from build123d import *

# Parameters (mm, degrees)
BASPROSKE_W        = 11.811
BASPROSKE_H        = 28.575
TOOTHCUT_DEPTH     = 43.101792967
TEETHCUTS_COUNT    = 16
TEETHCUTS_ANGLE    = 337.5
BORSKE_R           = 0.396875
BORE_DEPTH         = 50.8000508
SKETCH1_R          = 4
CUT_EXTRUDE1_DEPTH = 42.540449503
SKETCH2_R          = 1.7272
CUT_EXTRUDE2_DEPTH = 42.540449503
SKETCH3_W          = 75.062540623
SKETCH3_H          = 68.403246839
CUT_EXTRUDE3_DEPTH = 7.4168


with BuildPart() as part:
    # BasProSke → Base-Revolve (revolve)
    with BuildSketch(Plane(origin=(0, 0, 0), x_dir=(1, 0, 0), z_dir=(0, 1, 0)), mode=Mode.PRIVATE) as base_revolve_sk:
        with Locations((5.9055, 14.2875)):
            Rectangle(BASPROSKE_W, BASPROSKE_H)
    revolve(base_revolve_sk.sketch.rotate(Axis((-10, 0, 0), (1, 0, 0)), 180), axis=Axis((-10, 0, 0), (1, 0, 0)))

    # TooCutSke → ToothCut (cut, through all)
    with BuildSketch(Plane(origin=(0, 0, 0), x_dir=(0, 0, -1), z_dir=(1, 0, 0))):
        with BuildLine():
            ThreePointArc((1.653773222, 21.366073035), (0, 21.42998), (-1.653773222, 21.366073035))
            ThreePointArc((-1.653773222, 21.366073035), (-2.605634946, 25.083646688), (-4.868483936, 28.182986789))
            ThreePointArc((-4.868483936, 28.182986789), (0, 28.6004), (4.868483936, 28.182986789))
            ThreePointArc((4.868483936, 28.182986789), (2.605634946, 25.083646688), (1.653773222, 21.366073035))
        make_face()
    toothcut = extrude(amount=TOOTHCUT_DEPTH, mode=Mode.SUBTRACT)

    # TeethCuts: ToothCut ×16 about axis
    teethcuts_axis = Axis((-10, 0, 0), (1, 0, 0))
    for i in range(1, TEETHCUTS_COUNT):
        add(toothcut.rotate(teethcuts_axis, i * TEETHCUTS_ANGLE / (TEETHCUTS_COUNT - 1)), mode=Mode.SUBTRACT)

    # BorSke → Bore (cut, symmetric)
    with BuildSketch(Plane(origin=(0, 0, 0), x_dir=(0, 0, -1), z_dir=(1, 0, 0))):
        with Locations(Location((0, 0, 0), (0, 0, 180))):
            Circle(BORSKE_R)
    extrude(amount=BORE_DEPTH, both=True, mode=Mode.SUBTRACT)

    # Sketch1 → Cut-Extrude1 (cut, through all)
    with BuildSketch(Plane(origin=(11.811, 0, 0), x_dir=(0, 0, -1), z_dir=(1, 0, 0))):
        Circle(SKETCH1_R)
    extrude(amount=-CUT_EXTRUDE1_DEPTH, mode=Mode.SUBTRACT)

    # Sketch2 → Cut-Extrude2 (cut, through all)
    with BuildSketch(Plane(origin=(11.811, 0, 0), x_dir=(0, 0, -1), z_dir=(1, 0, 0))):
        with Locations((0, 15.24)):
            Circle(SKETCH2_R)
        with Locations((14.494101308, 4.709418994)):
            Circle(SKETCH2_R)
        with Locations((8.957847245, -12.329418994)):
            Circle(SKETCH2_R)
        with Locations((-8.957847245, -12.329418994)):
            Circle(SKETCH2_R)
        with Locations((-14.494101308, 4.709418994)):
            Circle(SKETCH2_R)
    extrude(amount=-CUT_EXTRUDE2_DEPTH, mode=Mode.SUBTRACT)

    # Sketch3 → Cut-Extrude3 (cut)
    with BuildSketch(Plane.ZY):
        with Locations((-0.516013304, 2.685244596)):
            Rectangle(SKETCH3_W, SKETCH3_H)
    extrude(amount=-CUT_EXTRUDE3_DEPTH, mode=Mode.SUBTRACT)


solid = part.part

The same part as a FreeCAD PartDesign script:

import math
import FreeCAD as App
import Part
import Sketcher
from FreeCAD import Vector
Q = App.Units.Quantity

doc = App.newDocument("Part")
body = doc.addObject("PartDesign::Body", "Body")

# Sketch on XZ plane
sketch1 = body.newObject("Sketcher::SketchObject", "Sketch")
sketch1.AttachmentSupport = (doc.getObject("XZ_Plane"), [""])
sketch1.MapMode = "FlatFace"
sketch1.addGeometry([
    Part.LineSegment(Vector(0, -29, 0), Vector(0, 0, 0)),
    Part.LineSegment(Vector(0, 0, 0), Vector(12, 0, 0)),
    Part.LineSegment(Vector(12, 0, 0), Vector(12, -29, 0)),
    Part.LineSegment(Vector(12, -29, 0), Vector(0, -29, 0)),
], False)
sketch1.addConstraint([
    Sketcher.Constraint("Coincident", 0, 2, 1, 1),
    Sketcher.Constraint("Coincident", 1, 2, 2, 1),
    Sketcher.Constraint("Coincident", 2, 2, 3, 1),
    Sketcher.Constraint("Coincident", 3, 2, 0, 1),
    Sketcher.Constraint("Vertical", 0),
    Sketcher.Constraint("Horizontal", 1),
    Sketcher.Constraint("Vertical", 2),
    Sketcher.Constraint("Horizontal", 3),
    Sketcher.Constraint("Coincident", 0, 2, -1, 1),
    Sketcher.Constraint("DistanceX", 1, 1, 1, 2, Q("0.465 in")),
    Sketcher.Constraint("DistanceY", 0, 1, 0, 2, Q("1.125 in")),
])
revolution = body.newObject("PartDesign::Revolution", "Revolution")
revolution.Profile = sketch1
revolution.ReferenceAxis = (sketch1, ["H_Axis"])
revolution.Angle = 360

# Sketch on YZ plane
sketch2 = body.newObject("Sketcher::SketchObject", "Sketch001")
sketch2.AttachmentSupport = (doc.getObject("YZ_Plane"), [""])
sketch2.MapMode = "FlatFace"
sketch2.addGeometry([
    Part.ArcOfCircle(Part.Circle(Vector(0, 0, 0), Vector(0, 0, 1), 21.4), math.radians(-4.43), math.radians(4.43)),
    Part.ArcOfCircle(Part.Circle(Vector(20.8, -11.8, 0), Vector(0, 0, 1), 10.2), math.radians(43), math.radians(87)),
    Part.ArcOfCircle(Part.Circle(Vector(0, 0, 0), Vector(0, 0, 1), 28.6), math.radians(-9.8), math.radians(9.8)),
    Part.ArcOfCircle(Part.Circle(Vector(20.8, 11.8, 0), Vector(0, 0, 1), 10.2), math.radians(-87), math.radians(-43)),
], False)
sketch2.addConstraint([
    Sketcher.Constraint("Coincident", 0, 1, 1, 2),
    Sketcher.Constraint("Coincident", 1, 1, 2, 1),
    Sketcher.Constraint("Coincident", 2, 2, 3, 2),
    Sketcher.Constraint("Coincident", 3, 1, 0, 2),
    Sketcher.Constraint("Coincident", 0, 3, -1, 1),
    Sketcher.Constraint("Coincident", 2, 3, -1, 1),
    Sketcher.Constraint("Equal", 1, 3),
    Sketcher.Constraint("Symmetric", 1, 3, 3, 3, -1),
    Sketcher.Constraint("Radius", 1, Q("0.4 in")),
    Sketcher.Constraint("Radius", 2, Q("1.126 in")),
    Sketcher.Constraint("Radius", 0, Q("0.8437 in")),
    Sketcher.Constraint("DistanceX", -1, 1, 1, 3, Q("20.750099 mm")),
    Sketcher.Constraint("DistanceY", 1, 3, 1, 1, Q("6.9266 mm")),
])
pocket1 = body.newObject("PartDesign::Pocket", "Pocket")
pocket1.Profile = sketch2
pocket1.Type = "ThroughAll"
pocket1.Reversed = True
doc.recompute()

polarpattern = body.newObject("PartDesign::PolarPattern", "PolarPattern")
polarpattern.Originals = [pocket1]
polarpattern.Axis = (doc.getObject("X_Axis"), [""])
polarpattern.Angle = 360
polarpattern.Occurrences = 16
body.Tip = polarpattern

# Sketch on YZ plane
sketch3 = body.newObject("Sketcher::SketchObject", "Sketch002")
sketch3.AttachmentSupport = (doc.getObject("YZ_Plane"), [""])
sketch3.MapMode = "FlatFace"
sketch3.addGeometry(Part.Circle(Vector(0, 0, 0), Vector(0, 0, 1), 0.4), False)
sketch3.addConstraint([
    Sketcher.Constraint("Coincident", 0, 3, -1, 1),
    Sketcher.Constraint("Diameter", 0, Q("0.03125 in")),
])
pocket2 = body.newObject("PartDesign::Pocket", "Pocket001")
pocket2.Profile = sketch3
pocket2.Length = 101.600102
pocket2.Midplane = True

# Sketch on YZ plane
sketch4 = body.newObject("Sketcher::SketchObject", "Sketch003")
sketch4.AttachmentSupport = (doc.getObject("YZ_Plane"), [""])
sketch4.MapMode = "FlatFace"
sketch4.AttachmentOffset = App.Placement(Vector(0, 0, 0.465 * 25.4), App.Rotation())
sketch4.addGeometry(Part.Circle(Vector(0, 0, 0), Vector(0, 0, 1), 4), False)
sketch4.addConstraint([
    Sketcher.Constraint("Coincident", 0, 3, -1, 1),
    Sketcher.Constraint("Diameter", 0, Q("8 mm")),
])
pocket3 = body.newObject("PartDesign::Pocket", "Pocket002")
pocket3.Profile = sketch4
pocket3.Type = "ThroughAll"

# Sketch on YZ plane
sketch5 = body.newObject("Sketcher::SketchObject", "Sketch004")
sketch5.AttachmentSupport = (doc.getObject("YZ_Plane"), [""])
sketch5.MapMode = "FlatFace"
sketch5.AttachmentOffset = App.Placement(Vector(0, 0, 0.465 * 25.4), App.Rotation())
sketch5.addGeometry([
    Part.Circle(Vector(15.2, 0, 0), Vector(0, 0, 1), 1.7),  # 0
    Part.Circle(Vector(4.7, -14.5, 0), Vector(0, 0, 1), 1.7),  # 1
    Part.Circle(Vector(-12.3, -9, 0), Vector(0, 0, 1), 1.7),  # 2
    Part.Circle(Vector(-12.3, 9, 0), Vector(0, 0, 1), 1.7),  # 3
    Part.Circle(Vector(4.7, 14.5, 0), Vector(0, 0, 1), 1.7),  # 4
], False)
sketch5.addConstraint([
    Sketcher.Constraint("Equal", 0, 1),
    Sketcher.Constraint("Equal", 1, 2),
    Sketcher.Constraint("Equal", 2, 3),
    Sketcher.Constraint("Equal", 3, 4),
    Sketcher.Constraint("Symmetric", 2, 3, 3, 3, -1),
    Sketcher.Constraint("Symmetric", 1, 3, 4, 3, -1),
    Sketcher.Constraint("PointOnObject", 0, 3, -1),
    Sketcher.Constraint("Diameter", 0, Q("0.136 in")),
    Sketcher.Constraint("DistanceX", -1, 1, 0, 3, Q("0.6 in")),
    Sketcher.Constraint("DistanceY", 1, 3, -1, 1, Q("14.494101 mm")),
    Sketcher.Constraint("DistanceX", -1, 1, 1, 3, Q("4.709419 mm")),
    Sketcher.Constraint("DistanceX", 2, 3, -1, 1, Q("12.329419 mm")),
    Sketcher.Constraint("DistanceY", 1, 3, 3, 3, Q("23.451949 mm")),
])
pocket4 = body.newObject("PartDesign::Pocket", "Pocket003")
pocket4.Profile = sketch5
pocket4.Type = "ThroughAll"

# Sketch on YZ plane
sketch6 = body.newObject("Sketcher::SketchObject", "Sketch005")
sketch6.AttachmentSupport = (doc.getObject("YZ_Plane"), [""])
sketch6.MapMode = "FlatFace"
sketch6.addGeometry([
    Part.LineSegment(Vector(37, -38, 0), Vector(-32, -38, 0)),
    Part.LineSegment(Vector(-32, -38, 0), Vector(-32, 37, 0)),
    Part.LineSegment(Vector(-32, 37, 0), Vector(37, 37, 0)),
    Part.LineSegment(Vector(37, 37, 0), Vector(37, -38, 0)),
], False)
sketch6.addConstraint([
    Sketcher.Constraint("Coincident", 0, 2, 1, 1),
    Sketcher.Constraint("Coincident", 1, 2, 2, 1),
    Sketcher.Constraint("Coincident", 2, 2, 3, 1),
    Sketcher.Constraint("Coincident", 3, 2, 0, 1),
    Sketcher.Constraint("Horizontal", 0),
    Sketcher.Constraint("Vertical", 1),
    Sketcher.Constraint("Horizontal", 2),
    Sketcher.Constraint("Vertical", 3),
    Sketcher.Constraint("DistanceY", 1, 1, 1, 2, Q("75.062541 mm")),
    Sketcher.Constraint("DistanceX", 0, 2, 0, 1, Q("68.403247 mm")),
    Sketcher.Constraint("DistanceX", 0, 2, -1, 1, Q("31.516379 mm")),
    Sketcher.Constraint("DistanceY", 0, 2, -1, 1, Q("38.047284 mm")),
])
pocket5 = body.newObject("PartDesign::Pocket", "Pocket004")
pocket5.Profile = sketch6
pocket5.Length = Q("0.292 in")
pocket5.Reversed = True

doc.recompute()
